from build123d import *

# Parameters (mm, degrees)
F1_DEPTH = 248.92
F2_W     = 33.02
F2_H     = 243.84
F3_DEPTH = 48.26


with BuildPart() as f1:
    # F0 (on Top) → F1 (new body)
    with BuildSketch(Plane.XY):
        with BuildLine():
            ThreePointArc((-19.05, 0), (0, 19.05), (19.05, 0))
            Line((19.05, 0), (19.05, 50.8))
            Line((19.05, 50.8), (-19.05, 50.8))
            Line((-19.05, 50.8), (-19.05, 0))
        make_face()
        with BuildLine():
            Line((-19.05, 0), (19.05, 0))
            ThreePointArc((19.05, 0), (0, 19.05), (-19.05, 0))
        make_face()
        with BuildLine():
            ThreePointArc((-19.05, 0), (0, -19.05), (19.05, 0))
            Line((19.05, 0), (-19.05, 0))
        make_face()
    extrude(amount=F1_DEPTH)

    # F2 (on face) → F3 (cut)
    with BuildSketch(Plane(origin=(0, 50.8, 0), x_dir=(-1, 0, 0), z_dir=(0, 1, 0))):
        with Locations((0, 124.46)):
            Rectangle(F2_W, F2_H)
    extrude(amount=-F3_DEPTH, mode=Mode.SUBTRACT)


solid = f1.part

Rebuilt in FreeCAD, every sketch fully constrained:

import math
import FreeCAD as App
import Part
import Sketcher
Q = App.Units.Quantity

doc = App.newDocument("Part")
body = doc.addObject("PartDesign::Body", "Body")

sketch1 = doc.addObject("Sketcher::SketchObject", "Sketch")
body.addObject(sketch1)
sketch1.AttachmentSupport = (doc.XY_Plane, [""])
sketch1.MapMode = "FlatFace"
sketch1.addGeometry([
    Part.LineSegment(App.Vector(19, 0, 0), App.Vector(19, 51, 0)),
    Part.LineSegment(App.Vector(19, 51, 0), App.Vector(-19, 51, 0)),
    Part.LineSegment(App.Vector(-19, 51, 0), App.Vector(-19, 0, 0)),
    Part.ArcOfCircle(Part.Circle(App.Vector(0, 0, 0), App.Vector(0, 0, 1), 19), math.radians(180), math.radians(360)),
], False)
sketch1.addConstraint([
    Sketcher.Constraint("Coincident", 0, 2, 1, 1),
    Sketcher.Constraint("Coincident", 1, 2, 2, 1),
    Sketcher.Constraint("Tangent", 2, 2, 3, 1),
    Sketcher.Constraint("Tangent", 3, 2, 0, 1),
    Sketcher.Constraint("Vertical", 0),
    Sketcher.Constraint("Horizontal", 1),
    Sketcher.Constraint("Vertical", 2),
    Sketcher.Constraint("Coincident", 3, 3, -1, 1),
    Sketcher.Constraint("DistanceY", 0, 1, 0, 2, Q("2 in")),
    Sketcher.Constraint("Radius", 3, Q("0.75 in")),
])
pad1 = doc.addObject("PartDesign::Pad", "Pad")
body.addObject(pad1)
pad1.Profile = sketch1
pad1.Length = Q("9.8 in")

sketch2 = doc.addObject("Sketcher::SketchObject", "Sketch001")
body.addObject(sketch2)
sketch2.AttachmentSupport = (doc.XZ_Plane, [""])
sketch2.MapMode = "FlatFace"
sketch2.AttachmentOffset = App.Placement(App.Vector(0, 0, -2 * 25.4), App.Rotation())
sketch2.addGeometry([
    Part.LineSegment(App.Vector(17, 246, 0), App.Vector(17, 3, 0)),
    Part.LineSegment(App.Vector(17, 3, 0), App.Vector(-17, 3, 0)),
    Part.LineSegment(App.Vector(-17, 3, 0), App.Vector(-17, 246, 0)),
    Part.LineSegment(App.Vector(-17, 246, 0), App.Vector(17, 246, 0)),
], False)
sketch2.addConstraint([
    Sketcher.Constraint("Coincident", 0, 2, 1, 1),
    Sketcher.Constraint("Coincident", 1, 2, 2, 1),
    Sketcher.Constraint("Coincident", 2, 2, 3, 1),
    Sketcher.Constraint("Coincident", 3, 2, 0, 1),
    Sketcher.Constraint("Vertical", 0),
    Sketcher.Constraint("Horizontal", 1),
    Sketcher.Constraint("Vertical", 2),
    Sketcher.Constraint("Horizontal", 3),
    Sketcher.Constraint("DistanceX", 1, 2, 1, 1, Q("1.3 in")),
    Sketcher.Constraint("DistanceY", 0, 2, 0, 1, Q("9.6 in")),
    Sketcher.Constraint("DistanceY", -1, 1, 0, 2, Q("0.1 in")),
    Sketcher.Constraint("DistanceX", -1, 1, 0, 2, Q("0.65 in")),
])
pocket1 = doc.addObject("PartDesign::Pocket", "Pocket")
body.addObject(pocket1)
pocket1.Profile = sketch2
pocket1.Length = Q("1.9 in")
pocket1.Reversed = True

doc.recompute()
